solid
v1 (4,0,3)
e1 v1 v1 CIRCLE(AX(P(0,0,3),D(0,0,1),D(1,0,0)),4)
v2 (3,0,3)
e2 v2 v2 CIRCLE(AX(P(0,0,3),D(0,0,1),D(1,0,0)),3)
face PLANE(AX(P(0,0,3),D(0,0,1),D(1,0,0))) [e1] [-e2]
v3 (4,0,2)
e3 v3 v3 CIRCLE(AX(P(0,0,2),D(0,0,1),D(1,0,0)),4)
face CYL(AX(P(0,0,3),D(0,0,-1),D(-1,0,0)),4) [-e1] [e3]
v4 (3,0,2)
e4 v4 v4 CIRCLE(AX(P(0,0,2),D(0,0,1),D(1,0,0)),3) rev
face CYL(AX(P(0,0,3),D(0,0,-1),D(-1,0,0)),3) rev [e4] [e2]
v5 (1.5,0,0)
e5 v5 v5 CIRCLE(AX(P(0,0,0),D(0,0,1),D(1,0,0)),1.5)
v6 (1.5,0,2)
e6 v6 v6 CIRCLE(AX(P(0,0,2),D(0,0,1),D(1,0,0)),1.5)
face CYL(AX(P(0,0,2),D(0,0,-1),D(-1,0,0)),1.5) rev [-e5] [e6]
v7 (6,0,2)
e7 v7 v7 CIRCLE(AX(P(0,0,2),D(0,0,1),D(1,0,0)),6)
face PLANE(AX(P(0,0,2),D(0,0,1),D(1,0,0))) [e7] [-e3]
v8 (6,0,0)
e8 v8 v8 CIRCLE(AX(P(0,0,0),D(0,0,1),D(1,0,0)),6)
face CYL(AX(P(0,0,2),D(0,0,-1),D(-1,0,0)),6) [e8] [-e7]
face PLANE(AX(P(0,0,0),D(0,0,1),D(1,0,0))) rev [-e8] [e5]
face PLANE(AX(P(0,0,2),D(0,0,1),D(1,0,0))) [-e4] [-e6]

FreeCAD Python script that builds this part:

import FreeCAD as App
import Part
import Sketcher
from FreeCAD import Vector

doc = App.newDocument("Part")
body = doc.addObject("PartDesign::Body", "Body")

sketch1 = doc.addObject("Sketcher::SketchObject", "Sketch")
body.addObject(sketch1)
sketch1.AttachmentSupport = (doc.XY_Plane, [""])
sketch1.MapMode = "FlatFace"
sketch1.addGeometry(Part.Circle(Vector(0, 0, 0), Vector(0, 0, 1), 6), False)
sketch1.addGeometry(Part.Circle(Vector(0, 0, 0), Vector(0, 0, 1), 1.5), False)
sketch1.addConstraint(Sketcher.Constraint("Coincident", 0, 3, -1, 1))
sketch1.addConstraint(Sketcher.Constraint("Coincident", 1, 3, -1, 1))
sketch1.addConstraint(Sketcher.Constraint("Diameter", 0, 12.0))
sketch1.addConstraint(Sketcher.Constraint("Diameter", 1, 3.0))
pad1 = doc.addObject("PartDesign::Pad", "Pad")
body.addObject(pad1)
pad1.Profile = sketch1
pad1.Length = 2

sketch2 = doc.addObject("Sketcher::SketchObject", "Sketch001")
body.addObject(sketch2)
sketch2.AttachmentSupport = (doc.XY_Plane, [""])
sketch2.MapMode = "FlatFace"
sketch2.AttachmentOffset = App.Placement(Vector(0, 0, 2), App.Rotation())
sketch2.addGeometry(Part.Circle(Vector(0, 0, 0), Vector(0, 0, 1), 4), False)
sketch2.addGeometry(Part.Circle(Vector(0, 0, 0), Vector(0, 0, 1), 3), False)
sketch2.addConstraint(Sketcher.Constraint("Coincident", 0, 3, -1, 1))
sketch2.addConstraint(Sketcher.Constraint("Coincident", 1, 3, -1, 1))
sketch2.addConstraint(Sketcher.Constraint("Diameter", 0, 8.0))
sketch2.addConstraint(Sketcher.Constraint("Diameter", 1, 6.0))
pad2 = doc.addObject("PartDesign::Pad", "Pad001")
body.addObject(pad2)
pad2.Profile = sketch2
pad2.Length = 1

doc.recompute()
